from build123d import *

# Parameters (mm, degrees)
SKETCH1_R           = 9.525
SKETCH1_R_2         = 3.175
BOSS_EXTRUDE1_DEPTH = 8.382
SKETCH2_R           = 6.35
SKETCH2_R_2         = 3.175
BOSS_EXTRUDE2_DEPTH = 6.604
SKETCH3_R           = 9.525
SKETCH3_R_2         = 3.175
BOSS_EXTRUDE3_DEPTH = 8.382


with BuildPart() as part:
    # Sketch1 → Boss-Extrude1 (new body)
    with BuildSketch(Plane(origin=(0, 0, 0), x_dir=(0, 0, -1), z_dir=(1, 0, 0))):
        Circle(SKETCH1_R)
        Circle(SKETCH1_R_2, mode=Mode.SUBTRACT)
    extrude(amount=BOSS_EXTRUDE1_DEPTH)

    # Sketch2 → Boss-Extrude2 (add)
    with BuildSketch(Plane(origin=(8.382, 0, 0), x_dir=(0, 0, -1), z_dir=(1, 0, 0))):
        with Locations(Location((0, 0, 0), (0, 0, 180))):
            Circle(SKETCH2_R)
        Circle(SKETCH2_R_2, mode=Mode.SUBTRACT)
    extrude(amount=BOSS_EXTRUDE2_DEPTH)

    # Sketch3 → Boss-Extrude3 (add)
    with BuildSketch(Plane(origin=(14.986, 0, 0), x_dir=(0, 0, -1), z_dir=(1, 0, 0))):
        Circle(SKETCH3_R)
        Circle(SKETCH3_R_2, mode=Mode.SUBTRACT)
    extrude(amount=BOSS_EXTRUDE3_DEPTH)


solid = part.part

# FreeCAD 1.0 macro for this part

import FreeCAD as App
import Part
import Sketcher

V = App.Vector
Q = App.Units.Quantity

doc = App.newDocument("Part")
body = doc.addObject("PartDesign::Body", "Body")

sketch1 = body.newObject("Sketcher::SketchObject", "Sketch")
sketch1.AttachmentSupport = (doc.getObject("YZ_Plane"), [""])
sketch1.MapMode = "FlatFace"
sketch1.addGeometry(Part.Circle(V(0, 0, 0), V(0, 0, 1), 9.525), False)
sketch1.addGeometry(Part.Circle(V(0, 0, 0), V(0, 0, 1), 3.175), False)
sketch1.addConstraint(Sketcher.Constraint("Coincident", 0, 3, -1, 1))
sketch1.addConstraint(Sketcher.Constraint("Coincident", 1, 3, -1, 1))
sketch1.addConstraint(Sketcher.Constraint("Diameter", 0, Q("0.75 in")))
sketch1.addConstraint(Sketcher.Constraint("Diameter", 1, Q("0.25 in")))
pad1 = body.newObject("PartDesign::Pad", "Pad")
pad1.Profile = sketch1
pad1.Length = Q("0.33 in")

sketch2 = body.newObject("Sketcher::SketchObject", "Sketch001")
sketch2.AttachmentSupport = (doc.getObject("YZ_Plane"), [""])
sketch2.MapMode = "FlatFace"
sketch2.AttachmentOffset = App.Placement(V(0, 0, 0.33 * 25.4), App.Rotation())
sketch2.addGeometry(Part.Circle(V(0, 0, 0), V(0, 0, 1), 6.35), False)
sketch2.addGeometry(Part.Circle(V(0, 0, 0), V(0, 0, 1), 3.175), False)
sketch2.addConstraint(Sketcher.Constraint("Coincident", 0, 3, -1, 1))
sketch2.addConstraint(Sketcher.Constraint("Coincident", 1, 3, -1, 1))
sketch2.addConstraint(Sketcher.Constraint("Diameter", 0, Q("0.5 in")))
sketch2.addConstraint(Sketcher.Constraint("Diameter", 1, Q("0.25 in")))
pad2 = body.newObject("PartDesign::Pad", "Pad001")
pad2.Profile = sketch2
pad2.Length = Q("0.26 in")

sketch3 = body.newObject("Sketcher::SketchObject", "Sketch002")
sketch3.AttachmentSupport = (doc.getObject("YZ_Plane"), [""])
sketch3.MapMode = "FlatFace"
sketch3.AttachmentOffset = App.Placement(V(0, 0, 0.59 * 25.4), App.Rotation())
sketch3.addGeometry(Part.Circle(V(0, 0, 0), V(0, 0, 1), 9.525), False)
sketch3.addGeometry(Part.Circle(V(0, 0, 0), V(0, 0, 1), 3.175), False)
sketch3.addConstraint(Sketcher.Constraint("Coincident", 0, 3, -1, 1))
sketch3.addConstraint(Sketcher.Constraint("Coincident", 1, 3, -1, 1))
sketch3.addConstraint(Sketcher.Constraint("Diameter", 0, Q("0.75 in")))
sketch3.addConstraint(Sketcher.Constraint("Diameter", 1, Q("0.25 in")))
pad3 = body.newObject("PartDesign::Pad", "Pad002")
pad3.Profile = sketch3
pad3.Length = Q("0.33 in")

doc.recompute()
